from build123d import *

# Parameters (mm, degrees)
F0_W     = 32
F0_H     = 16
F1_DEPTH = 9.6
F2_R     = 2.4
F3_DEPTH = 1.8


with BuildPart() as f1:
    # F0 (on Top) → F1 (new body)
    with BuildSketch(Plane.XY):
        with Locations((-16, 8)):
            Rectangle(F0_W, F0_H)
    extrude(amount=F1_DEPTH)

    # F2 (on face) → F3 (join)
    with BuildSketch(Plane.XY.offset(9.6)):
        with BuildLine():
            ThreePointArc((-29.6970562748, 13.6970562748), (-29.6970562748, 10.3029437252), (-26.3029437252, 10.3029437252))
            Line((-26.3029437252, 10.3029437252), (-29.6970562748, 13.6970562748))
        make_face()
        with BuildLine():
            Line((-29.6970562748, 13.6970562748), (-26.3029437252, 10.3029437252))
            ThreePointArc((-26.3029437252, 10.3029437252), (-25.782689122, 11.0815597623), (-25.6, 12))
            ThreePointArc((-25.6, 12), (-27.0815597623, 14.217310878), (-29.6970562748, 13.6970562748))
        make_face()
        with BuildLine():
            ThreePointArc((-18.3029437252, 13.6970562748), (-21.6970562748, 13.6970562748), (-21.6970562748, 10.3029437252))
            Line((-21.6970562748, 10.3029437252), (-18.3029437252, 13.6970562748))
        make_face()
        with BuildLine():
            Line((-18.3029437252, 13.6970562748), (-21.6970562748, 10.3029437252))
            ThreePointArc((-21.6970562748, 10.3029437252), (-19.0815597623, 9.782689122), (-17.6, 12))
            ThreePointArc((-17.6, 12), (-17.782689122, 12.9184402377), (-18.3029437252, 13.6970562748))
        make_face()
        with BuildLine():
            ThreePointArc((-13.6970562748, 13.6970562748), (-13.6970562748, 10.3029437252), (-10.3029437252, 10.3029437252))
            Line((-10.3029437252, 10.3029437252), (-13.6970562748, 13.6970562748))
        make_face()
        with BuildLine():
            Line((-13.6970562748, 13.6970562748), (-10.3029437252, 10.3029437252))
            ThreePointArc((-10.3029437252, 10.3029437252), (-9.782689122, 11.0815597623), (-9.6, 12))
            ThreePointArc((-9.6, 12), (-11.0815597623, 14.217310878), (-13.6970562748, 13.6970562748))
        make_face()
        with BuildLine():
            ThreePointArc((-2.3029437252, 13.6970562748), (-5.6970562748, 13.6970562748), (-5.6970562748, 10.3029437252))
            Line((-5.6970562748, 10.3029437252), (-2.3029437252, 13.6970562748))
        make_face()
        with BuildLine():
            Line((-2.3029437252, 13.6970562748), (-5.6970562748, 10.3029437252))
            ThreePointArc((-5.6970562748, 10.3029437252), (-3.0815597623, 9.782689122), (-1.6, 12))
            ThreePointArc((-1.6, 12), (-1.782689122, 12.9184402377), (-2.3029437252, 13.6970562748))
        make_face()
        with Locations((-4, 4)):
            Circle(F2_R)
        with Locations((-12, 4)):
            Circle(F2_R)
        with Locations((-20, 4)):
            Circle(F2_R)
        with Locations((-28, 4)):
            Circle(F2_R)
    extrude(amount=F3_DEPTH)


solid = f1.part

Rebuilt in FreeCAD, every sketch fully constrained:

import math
import FreeCAD as App
import Part
import Sketcher
from FreeCAD import Vector

doc = App.newDocument("Part")
body = doc.addObject("PartDesign::Body", "Body")

sketch1 = doc.addObject("Sketcher::SketchObject", "Sketch")
body.addObject(sketch1)
sketch1.AttachmentSupport = (doc.XY_Plane, [""])
sketch1.MapMode = "FlatFace"
sketch1.addGeometry([
    Part.LineSegment(Vector(-32, 16, 0), Vector(-32, 0, 0)),
    Part.LineSegment(Vector(-32, 0, 0), Vector(0, 0, 0)),
    Part.LineSegment(Vector(0, 0, 0), Vector(0, 16, 0)),
    Part.LineSegment(Vector(0, 16, 0), Vector(-32, 16, 0)),
], False)
sketch1.addConstraint([
    Sketcher.Constraint("Coincident", 0, 2, 1, 1),
    Sketcher.Constraint("Coincident", 1, 2, 2, 1),
    Sketcher.Constraint("Coincident", 2, 2, 3, 1),
    Sketcher.Constraint("Coincident", 3, 2, 0, 1),
    Sketcher.Constraint("Vertical", 0),
    Sketcher.Constraint("Horizontal", 1),
    Sketcher.Constraint("Vertical", 2),
    Sketcher.Constraint("Horizontal", 3),
    Sketcher.Constraint("Coincident", 1, 2, -1, 1),
    Sketcher.Constraint("DistanceX", 1, 1, 1, 2, 32.0),
    Sketcher.Constraint("DistanceY", 0, 2, 0, 1, 16.0),
])
pad1 = doc.addObject("PartDesign::Pad", "Pad")
body.addObject(pad1)
pad1.Profile = sketch1
pad1.Length = 9.6

sketch2 = doc.addObject("Sketcher::SketchObject", "Sketch001")
body.addObject(sketch2)
sketch2.AttachmentSupport = (doc.XY_Plane, [""])
sketch2.MapMode = "FlatFace"
sketch2.AttachmentOffset = App.Placement(Vector(0, 0, 9.6), App.Rotation())
sketch2.addGeometry([
    Part.ArcOfCircle(Part.Circle(Vector(-28, 12, 0), Vector(0, 0, 1), 2.4), math.radians(135), math.radians(315)),
    Part.ArcOfCircle(Part.Circle(Vector(-28, 12, 0), Vector(0, 0, 1), 2.4), math.radians(-45), math.radians(0)),
    Part.ArcOfCircle(Part.Circle(Vector(-28, 12, 0), Vector(0, 0, 1), 2.4), math.radians(0), math.radians(135)),
    Part.ArcOfCircle(Part.Circle(Vector(-20, 12, 0), Vector(0, 0, 1), 2.4), math.radians(45), math.radians(225)),
    Part.ArcOfCircle(Part.Circle(Vector(-20, 12, 0), Vector(0, 0, 1), 2.4), math.radians(-135), math.radians(0)),
    Part.ArcOfCircle(Part.Circle(Vector(-20, 12, 0), Vector(0, 0, 1), 2.4), math.radians(0), math.radians(45)),
    Part.ArcOfCircle(Part.Circle(Vector(-12, 12, 0), Vector(0, 0, 1), 2.4), math.radians(135), math.radians(315)),
    Part.ArcOfCircle(Part.Circle(Vector(-12, 12, 0), Vector(0, 0, 1), 2.4), math.radians(-45), math.radians(0)),
    Part.ArcOfCircle(Part.Circle(Vector(-12, 12, 0), Vector(0, 0, 1), 2.4), math.radians(0), math.radians(135)),
    Part.ArcOfCircle(Part.Circle(Vector(-4, 12, 0), Vector(0, 0, 1), 2.4), math.radians(45), math.radians(225)),
    Part.ArcOfCircle(Part.Circle(Vector(-4, 12, 0), Vector(0, 0, 1), 2.4), math.radians(-135), math.radians(0)),
    Part.ArcOfCircle(Part.Circle(Vector(-4, 12, 0), Vector(0, 0, 1), 2.4), math.radians(0), math.radians(45)),
    Part.Circle(Vector(-4, 4, 0), Vector(0, 0, 1), 2.4),
    Part.Circle(Vector(-12, 4, 0), Vector(0, 0, 1), 2.4),
    Part.Circle(Vector(-20, 4, 0), Vector(0, 0, 1), 2.4),
    Part.Circle(Vector(-28, 4, 0), Vector(0, 0, 1), 2.4),
], False)
sketch2.addConstraint([
    Sketcher.Constraint("Tangent", 0, 2, 1, 1),
    Sketcher.Constraint("Tangent", 1, 2, 2, 1),
    Sketcher.Constraint("Tangent", 2, 2, 0, 1),
    Sketcher.Constraint("Tangent", 3, 2, 4, 1),
    Sketcher.Constraint("Tangent", 4, 2, 5, 1),
    Sketcher.Constraint("Tangent", 5, 2, 3, 1),
    Sketcher.Constraint("Tangent", 6, 2, 7, 1),
    Sketcher.Constraint("Tangent", 7, 2, 8, 1),
    Sketcher.Constraint("Tangent", 8, 2, 6, 1),
    Sketcher.Constraint("Tangent", 9, 2, 10, 1),
    Sketcher.Constraint("Tangent", 10, 2, 11, 1),
    Sketcher.Constraint("Tangent", 11, 2, 9, 1),
    Sketcher.Constraint("Equal", 2, 3),
    Sketcher.Constraint("Equal", 5, 6),
    Sketcher.Constraint("Equal", 8, 9),
    Sketcher.Constraint("Equal", 11, 12),
    Sketcher.Constraint("Equal", 12, 13),
    Sketcher.Constraint("Equal", 13, 14),
    Sketcher.Constraint("Equal", 14, 15),
    Sketcher.Constraint("Horizontal", 2, 3, 3, 3),
    Sketcher.Constraint("Horizontal", 5, 3, 6, 3),
    Sketcher.Constraint("Horizontal", 8, 3, 9, 3),
    Sketcher.Constraint("Horizontal", 12, 3, 13, 3),
    Sketcher.Constraint("Horizontal", 13, 3, 14, 3),
    Sketcher.Constraint("Horizontal", 14, 3, 15, 3),
    Sketcher.Constraint("Horizontal", 11, 3, 1, 2),
    Sketcher.Constraint("Horizontal", 0, 2, 3, 2),
    Sketcher.Constraint("Horizontal", 1, 2, 4, 2),
    Sketcher.Constraint("Horizontal", 2, 2, 5, 2),
    Sketcher.Constraint("Horizontal", 3, 2, 6, 2),
    Sketcher.Constraint("Horizontal", 4, 2, 7, 2),
    Sketcher.Constraint("Horizontal", 5, 2, 8, 2),
    Sketcher.Constraint("Horizontal", 6, 2, 9, 2),
    Sketcher.Constraint("Horizontal", 7, 2, 10, 2),
    Sketcher.Constraint("Horizontal", 8, 2, 11, 2),
    Sketcher.Constraint("Vertical", 11, 3, 12, 3),
    Sketcher.Constraint("Vertical", 8, 3, 13, 3),
    Sketcher.Constraint("Vertical", 5, 3, 14, 3),
    Sketcher.Constraint("Vertical", 2, 3, 15, 3),
    Sketcher.Constraint("Diameter", 12, 4.8),
    Sketcher.Constraint("DistanceX", 0, 3, -1, 1, 28.0),
    Sketcher.Constraint("DistanceY", -1, 1, 0, 3, 12.0),
    Sketcher.Constraint("DistanceX", 3, 3, -1, 1, 20.0),
    Sketcher.Constraint("DistanceX", 6, 3, -1, 1, 12.0),
    Sketcher.Constraint("DistanceX", 9, 3, -1, 1, 4.0),
    Sketcher.Constraint("DistanceY", -1, 1, 12, 3, 4.0),
    Sketcher.Constraint("DistanceX", 0, 2, -1, 1, 26.302944),
    Sketcher.Constraint("DistanceX", 2, 2, -1, 1, 29.697056),
])
pad2 = doc.addObject("PartDesign::Pad", "Pad001")
body.addObject(pad2)
pad2.Profile = sketch2
pad2.Length = 1.8

doc.recompute()
